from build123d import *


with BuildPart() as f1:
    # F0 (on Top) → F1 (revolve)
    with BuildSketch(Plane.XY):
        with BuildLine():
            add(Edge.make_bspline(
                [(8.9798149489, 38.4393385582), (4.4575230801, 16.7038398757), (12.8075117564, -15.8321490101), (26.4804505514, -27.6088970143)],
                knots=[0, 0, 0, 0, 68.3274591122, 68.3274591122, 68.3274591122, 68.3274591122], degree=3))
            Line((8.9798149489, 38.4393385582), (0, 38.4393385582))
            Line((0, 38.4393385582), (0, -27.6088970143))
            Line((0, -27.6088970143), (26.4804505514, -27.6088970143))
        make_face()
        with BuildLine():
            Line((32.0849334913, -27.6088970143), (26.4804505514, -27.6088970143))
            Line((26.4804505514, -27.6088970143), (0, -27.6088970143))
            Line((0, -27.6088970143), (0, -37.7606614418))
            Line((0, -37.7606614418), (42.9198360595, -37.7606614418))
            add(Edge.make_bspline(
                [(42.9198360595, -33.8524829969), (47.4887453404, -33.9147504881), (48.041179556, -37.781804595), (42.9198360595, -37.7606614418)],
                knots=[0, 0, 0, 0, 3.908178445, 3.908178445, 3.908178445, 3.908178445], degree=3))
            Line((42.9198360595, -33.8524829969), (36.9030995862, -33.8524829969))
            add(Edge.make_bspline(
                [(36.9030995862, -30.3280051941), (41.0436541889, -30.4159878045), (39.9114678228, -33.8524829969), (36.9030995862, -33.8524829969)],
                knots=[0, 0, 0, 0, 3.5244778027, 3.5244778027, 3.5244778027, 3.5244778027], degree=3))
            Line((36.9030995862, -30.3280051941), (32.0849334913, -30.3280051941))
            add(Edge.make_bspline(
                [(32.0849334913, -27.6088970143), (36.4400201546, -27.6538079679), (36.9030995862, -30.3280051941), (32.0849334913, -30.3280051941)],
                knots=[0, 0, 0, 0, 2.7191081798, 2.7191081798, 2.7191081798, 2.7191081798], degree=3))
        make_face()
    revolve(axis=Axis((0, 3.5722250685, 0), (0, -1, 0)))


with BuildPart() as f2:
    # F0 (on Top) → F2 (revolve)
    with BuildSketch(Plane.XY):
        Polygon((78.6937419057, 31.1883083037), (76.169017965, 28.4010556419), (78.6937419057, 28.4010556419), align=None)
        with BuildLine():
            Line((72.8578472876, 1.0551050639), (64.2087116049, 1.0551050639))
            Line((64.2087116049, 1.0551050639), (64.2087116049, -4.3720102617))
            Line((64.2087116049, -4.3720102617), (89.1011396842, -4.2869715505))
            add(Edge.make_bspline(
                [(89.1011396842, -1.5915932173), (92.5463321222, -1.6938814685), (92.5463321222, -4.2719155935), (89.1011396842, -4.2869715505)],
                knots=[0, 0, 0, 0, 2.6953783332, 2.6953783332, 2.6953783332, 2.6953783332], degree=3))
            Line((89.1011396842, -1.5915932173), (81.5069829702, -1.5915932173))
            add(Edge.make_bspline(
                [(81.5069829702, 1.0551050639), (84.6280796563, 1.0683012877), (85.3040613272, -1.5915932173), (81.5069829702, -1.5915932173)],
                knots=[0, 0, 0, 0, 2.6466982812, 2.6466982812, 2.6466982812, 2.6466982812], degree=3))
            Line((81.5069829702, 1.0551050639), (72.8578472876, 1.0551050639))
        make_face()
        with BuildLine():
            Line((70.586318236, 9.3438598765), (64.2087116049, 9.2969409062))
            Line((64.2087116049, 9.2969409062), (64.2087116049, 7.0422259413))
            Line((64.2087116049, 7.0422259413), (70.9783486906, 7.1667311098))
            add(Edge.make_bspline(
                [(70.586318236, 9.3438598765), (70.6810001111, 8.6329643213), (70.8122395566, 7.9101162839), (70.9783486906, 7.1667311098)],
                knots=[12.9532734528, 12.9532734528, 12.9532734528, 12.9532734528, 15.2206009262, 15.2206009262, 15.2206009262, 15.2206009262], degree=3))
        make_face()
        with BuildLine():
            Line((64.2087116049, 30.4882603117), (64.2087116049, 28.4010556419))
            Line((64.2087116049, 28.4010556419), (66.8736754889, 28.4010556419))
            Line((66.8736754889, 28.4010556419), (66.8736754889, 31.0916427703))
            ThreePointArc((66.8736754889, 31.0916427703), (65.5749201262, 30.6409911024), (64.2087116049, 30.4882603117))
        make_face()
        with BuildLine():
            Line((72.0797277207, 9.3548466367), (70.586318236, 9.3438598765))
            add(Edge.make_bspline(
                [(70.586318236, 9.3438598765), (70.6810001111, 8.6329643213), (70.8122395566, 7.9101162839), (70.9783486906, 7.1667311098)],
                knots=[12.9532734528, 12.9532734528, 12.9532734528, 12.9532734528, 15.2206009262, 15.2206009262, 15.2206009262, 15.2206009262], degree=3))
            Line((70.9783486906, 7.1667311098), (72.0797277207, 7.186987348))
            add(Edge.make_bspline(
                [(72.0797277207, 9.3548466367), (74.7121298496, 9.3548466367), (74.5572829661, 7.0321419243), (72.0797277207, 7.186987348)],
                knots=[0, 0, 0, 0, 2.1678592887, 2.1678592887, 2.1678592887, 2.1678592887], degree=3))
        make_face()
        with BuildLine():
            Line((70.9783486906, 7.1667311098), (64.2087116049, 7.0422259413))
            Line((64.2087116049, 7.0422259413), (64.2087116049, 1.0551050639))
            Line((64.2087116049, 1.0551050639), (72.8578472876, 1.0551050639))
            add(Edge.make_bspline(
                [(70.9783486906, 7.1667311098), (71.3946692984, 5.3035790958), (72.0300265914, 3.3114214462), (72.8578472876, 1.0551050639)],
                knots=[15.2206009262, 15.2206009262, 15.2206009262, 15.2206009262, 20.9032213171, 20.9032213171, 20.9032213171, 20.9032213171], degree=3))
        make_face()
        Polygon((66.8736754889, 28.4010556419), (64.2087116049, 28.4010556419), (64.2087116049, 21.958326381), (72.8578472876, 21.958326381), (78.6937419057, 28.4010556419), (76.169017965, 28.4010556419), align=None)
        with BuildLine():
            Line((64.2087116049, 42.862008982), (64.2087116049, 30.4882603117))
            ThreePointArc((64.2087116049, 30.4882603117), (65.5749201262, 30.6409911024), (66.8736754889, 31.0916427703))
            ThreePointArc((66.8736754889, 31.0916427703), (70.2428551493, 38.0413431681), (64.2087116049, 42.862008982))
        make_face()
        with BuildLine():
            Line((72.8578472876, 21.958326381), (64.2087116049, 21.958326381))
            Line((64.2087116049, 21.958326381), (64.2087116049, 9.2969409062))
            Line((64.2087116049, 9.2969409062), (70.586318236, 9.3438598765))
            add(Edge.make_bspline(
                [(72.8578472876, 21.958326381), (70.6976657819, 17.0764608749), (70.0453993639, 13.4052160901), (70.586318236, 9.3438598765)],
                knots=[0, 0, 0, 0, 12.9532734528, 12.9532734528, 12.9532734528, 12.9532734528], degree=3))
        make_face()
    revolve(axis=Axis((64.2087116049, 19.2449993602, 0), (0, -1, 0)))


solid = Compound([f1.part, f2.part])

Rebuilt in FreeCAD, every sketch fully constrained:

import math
import FreeCAD as App
import Part
import Sketcher
from FreeCAD import Vector

doc = App.newDocument("Part")
params = doc.addObject("Spreadsheet::Sheet", "Params")
for row, (alias, value) in enumerate([
    ("revolution_angle", "360 deg"),
    ("revolution2_angle", "360 deg"),
], start=1):
    params.set(f"A{row}", alias)
    params.set(f"B{row}", "=" + value)
    params.setAlias(f"B{row}", alias)

body = doc.addObject("PartDesign::Body", "Body")

sketch1 = body.newObject("Sketcher::SketchObject", "Sketch")
sketch1.AttachmentSupport = (doc.getObject("XY_Plane"), [""])
sketch1.MapMode = "FlatFace"
sketch1.addGeometry([
    Part.BSplineCurve([Vector(8.979815, 38.439339, 0), Vector(4.457523, 16.70384, 0), Vector(12.807512, -15.832149, 0), Vector(26.480451, -27.608897, 0)], [4, 4], [0, 68.327459112], False, 3, [1, 1, 1, 1], False),
    Part.LineSegment(Vector(8.979815, 38.439339, 0), Vector(0, 38.439339, 0)),
    Part.LineSegment(Vector(0, 38.439339, 0), Vector(0, -37.760661, 0)),
    Part.LineSegment(Vector(0, -37.760661, 0), Vector(42.919836, -37.760661, 0)),
    Part.BSplineCurve([Vector(42.919836, -33.852483, 0), Vector(47.488745, -33.91475, 0), Vector(48.04118, -37.781805, 0), Vector(42.919836, -37.760661, 0)], [4, 4], [0, 3.908178445], False, 3, [1, 1, 1, 1], False),
    Part.LineSegment(Vector(42.919836, -33.852483, 0), Vector(36.9031, -33.852483, 0)),
    Part.BSplineCurve([Vector(36.9031, -30.328005, 0), Vector(41.043654, -30.415988, 0), Vector(39.911468, -33.852483, 0), Vector(36.9031, -33.852483, 0)], [4, 4], [0, 3.524477803], False, 3, [1, 1, 1, 1], False),
    Part.LineSegment(Vector(36.9031, -30.328005, 0), Vector(32.084933, -30.328005, 0)),
    Part.BSplineCurve([Vector(32.084933, -27.608897, 0), Vector(36.44002, -27.653808, 0), Vector(36.9031, -30.328005, 0), Vector(32.084933, -30.328005, 0)], [4, 4], [0, 2.71910818], False, 3, [1, 1, 1, 1], False),
    Part.LineSegment(Vector(32.084933, -27.608897, 0), Vector(26.480451, -27.608897, 0)),
], False)
sketch1.addConstraint([
    Sketcher.Constraint("Block", 0),
    Sketcher.Constraint("Block", 4),
    Sketcher.Constraint("Block", 6),
    Sketcher.Constraint("Block", 8),
    Sketcher.Constraint("Coincident", 0, 1, 1, 1),
    Sketcher.Constraint("Coincident", 1, 2, 2, 1),
    Sketcher.Constraint("Coincident", 2, 2, 3, 1),
    Sketcher.Constraint("Coincident", 3, 2, 4, 2),
    Sketcher.Constraint("Coincident", 4, 1, 5, 1),
    Sketcher.Constraint("Coincident", 5, 2, 6, 2),
    Sketcher.Constraint("Coincident", 6, 1, 7, 1),
    Sketcher.Constraint("Coincident", 7, 2, 8, 2),
    Sketcher.Constraint("Coincident", 8, 1, 9, 1),
    Sketcher.Constraint("Coincident", 9, 2, 0, 2),
    Sketcher.Constraint("Horizontal", 1),
    Sketcher.Constraint("Vertical", 2),
    Sketcher.Constraint("Horizontal", 3),
    Sketcher.Constraint("PointOnObject", 1, 2, -2),
])
revolution = body.newObject("PartDesign::Revolution", "Revolution")
revolution.Profile = sketch1
revolution.ReferenceAxis = (sketch1, ["V_Axis"])
revolution.setExpression("Angle", "Params.revolution_angle")
body2 = doc.addObject("PartDesign::Body", "Body001")

sketch2 = body2.newObject("Sketcher::SketchObject", "Sketch001")
sketch2.AttachmentSupport = (doc.getObject("XY_Plane001"), [""])
sketch2.MapMode = "FlatFace"
sketch2.addGeometry([
    Part.LineSegment(Vector(78.693742, 31.188308, 0), Vector(76.169018, 28.401056, 0)),
    Part.LineSegment(Vector(76.169018, 28.401056, 0), Vector(66.873675, 28.401056, 0)),
    Part.LineSegment(Vector(66.873675, 28.401056, 0), Vector(66.873675, 31.091643, 0)),
    Part.ArcOfCircle(Part.Circle(Vector(64.208712, 36.675135, 0), Vector(0, 0, 1), 6.186874), math.radians(-64.485164), math.radians(90)),
    Part.LineSegment(Vector(64.208712, 42.862009, 0), Vector(64.208712, -4.37201, 0)),
    Part.LineSegment(Vector(64.208712, -4.37201, 0), Vector(89.10114, -4.286972, 0)),
    Part.BSplineCurve([Vector(89.10114, -1.591593, 0), Vector(92.546332, -1.693881, 0), Vector(92.546332, -4.271916, 0), Vector(89.10114, -4.286972, 0)], [4, 4], [0, 2.695378333], False, 3, [1, 1, 1, 1], False),
    Part.LineSegment(Vector(89.10114, -1.591593, 0), Vector(81.506983, -1.591593, 0)),
    Part.BSplineCurve([Vector(81.506983, 1.055105, 0), Vector(84.62808, 1.068301, 0), Vector(85.304061, -1.591593, 0), Vector(81.506983, -1.591593, 0)], [4, 4], [0, 2.646698281], False, 3, [1, 1, 1, 1], False),
    Part.LineSegment(Vector(81.506983, 1.055105, 0), Vector(72.857847, 1.055105, 0)),
    Part.BSplineCurve([Vector(70.978349, 7.166731, 0), Vector(71.394669, 5.303579, 0), Vector(72.030027, 3.311421, 0), Vector(72.857847, 1.055105, 0)], [4, 4], [15.220600926, 20.903221317], False, 3, [1, 1, 1, 1], False),
    Part.LineSegment(Vector(70.978349, 7.166731, 0), Vector(72.079728, 7.186987, 0)),
    Part.BSplineCurve([Vector(72.079728, 9.354847, 0), Vector(74.71213, 9.354847, 0), Vector(74.557283, 7.032142, 0), Vector(72.079728, 7.186987, 0)], [4, 4], [0, 2.167859289], False, 3, [1, 1, 1, 1], False),
    Part.LineSegment(Vector(72.079728, 9.354847, 0), Vector(70.586318, 9.34386, 0)),
    Part.BSplineCurve([Vector(72.857847, 21.958326, 0), Vector(70.697666, 17.076461, 0), Vector(70.045399, 13.405216, 0), Vector(70.586318, 9.34386, 0)], [4, 4], [0, 12.953273453], False, 3, [1, 1, 1, 1], False),
    Part.LineSegment(Vector(72.857847, 21.958326, 0), Vector(78.693742, 28.401056, 0)),
    Part.LineSegment(Vector(78.693742, 28.401056, 0), Vector(78.693742, 31.188308, 0)),
], False)
sketch2.addGeometry(Part.LineSegment(Vector(64.208712, 42.862009, 0), Vector(64.208712, -4.37201, 0)), True)
sketch2.addConstraint([
    Sketcher.Constraint("Block", 6),
    Sketcher.Constraint("Block", 8),
    Sketcher.Constraint("Block", 10),
    Sketcher.Constraint("Block", 12),
    Sketcher.Constraint("Block", 14),
    Sketcher.Constraint("Coincident", 0, 2, 1, 1),
    Sketcher.Constraint("Coincident", 1, 2, 2, 1),
    Sketcher.Constraint("Coincident", 2, 2, 3, 1),
    Sketcher.Constraint("Coincident", 3, 2, 4, 1),
    Sketcher.Constraint("Coincident", 4, 2, 5, 1),
    Sketcher.Constraint("Coincident", 5, 2, 6, 2),
    Sketcher.Constraint("Coincident", 6, 1, 7, 1),
    Sketcher.Constraint("Coincident", 7, 2, 8, 2),
    Sketcher.Constraint("Coincident", 8, 1, 9, 1),
    Sketcher.Constraint("Coincident", 9, 2, 10, 2),
    Sketcher.Constraint("Coincident", 10, 1, 11, 1),
    Sketcher.Constraint("Coincident", 11, 2, 12, 2),
    Sketcher.Constraint("Coincident", 12, 1, 13, 1),
    Sketcher.Constraint("Coincident", 13, 2, 14, 2),
    Sketcher.Constraint("Coincident", 14, 1, 15, 1),
    Sketcher.Constraint("Coincident", 15, 2, 16, 1),
    Sketcher.Constraint("Coincident", 16, 2, 0, 1),
    Sketcher.Constraint("Horizontal", 1),
    Sketcher.Constraint("Vertical", 2),
    Sketcher.Constraint("Vertical", 4),
    Sketcher.Constraint("Vertical", 16),
    Sketcher.Constraint("Vertical", 17),
    Sketcher.Constraint("Coincident", 17, 1, 3, 2),
    Sketcher.Constraint("Parallel", 0, 15),
    Sketcher.Constraint("Horizontal", 1, 2, 15, 2),
    Sketcher.Constraint("Equal", 4, 17),
    Sketcher.Constraint("Radius", 3, 6.186874),
    Sketcher.Constraint("DistanceY", 4, 2, 4, 1, 47.234019),
    Sketcher.Constraint("DistanceY", 16, 2, 17, 1, 11.673701),
    Sketcher.Constraint("Distance", 0, 3.760719),
    Sketcher.Constraint("DistanceX", 1, 2, 1, 1, 9.295342),
    Sketcher.Constraint("DistanceY", 2, 1, 2, 2, 2.690587),
    Sketcher.Constraint("DistanceY", 16, 1, 16, 2, 2.787253),
    Sketcher.Constraint("DistanceX", -1, 1, 3, 3, 64.208712),
    Sketcher.Constraint("DistanceX", -1, 1, 3, 2, 64.208712),
])
revolution2 = body2.newObject("PartDesign::Revolution", "Revolution001")
revolution2.Profile = sketch2
revolution2.ReferenceAxis = (sketch2, ["Axis0"])
revolution2.setExpression("Angle", "Params.revolution2_angle")

doc.recompute()
